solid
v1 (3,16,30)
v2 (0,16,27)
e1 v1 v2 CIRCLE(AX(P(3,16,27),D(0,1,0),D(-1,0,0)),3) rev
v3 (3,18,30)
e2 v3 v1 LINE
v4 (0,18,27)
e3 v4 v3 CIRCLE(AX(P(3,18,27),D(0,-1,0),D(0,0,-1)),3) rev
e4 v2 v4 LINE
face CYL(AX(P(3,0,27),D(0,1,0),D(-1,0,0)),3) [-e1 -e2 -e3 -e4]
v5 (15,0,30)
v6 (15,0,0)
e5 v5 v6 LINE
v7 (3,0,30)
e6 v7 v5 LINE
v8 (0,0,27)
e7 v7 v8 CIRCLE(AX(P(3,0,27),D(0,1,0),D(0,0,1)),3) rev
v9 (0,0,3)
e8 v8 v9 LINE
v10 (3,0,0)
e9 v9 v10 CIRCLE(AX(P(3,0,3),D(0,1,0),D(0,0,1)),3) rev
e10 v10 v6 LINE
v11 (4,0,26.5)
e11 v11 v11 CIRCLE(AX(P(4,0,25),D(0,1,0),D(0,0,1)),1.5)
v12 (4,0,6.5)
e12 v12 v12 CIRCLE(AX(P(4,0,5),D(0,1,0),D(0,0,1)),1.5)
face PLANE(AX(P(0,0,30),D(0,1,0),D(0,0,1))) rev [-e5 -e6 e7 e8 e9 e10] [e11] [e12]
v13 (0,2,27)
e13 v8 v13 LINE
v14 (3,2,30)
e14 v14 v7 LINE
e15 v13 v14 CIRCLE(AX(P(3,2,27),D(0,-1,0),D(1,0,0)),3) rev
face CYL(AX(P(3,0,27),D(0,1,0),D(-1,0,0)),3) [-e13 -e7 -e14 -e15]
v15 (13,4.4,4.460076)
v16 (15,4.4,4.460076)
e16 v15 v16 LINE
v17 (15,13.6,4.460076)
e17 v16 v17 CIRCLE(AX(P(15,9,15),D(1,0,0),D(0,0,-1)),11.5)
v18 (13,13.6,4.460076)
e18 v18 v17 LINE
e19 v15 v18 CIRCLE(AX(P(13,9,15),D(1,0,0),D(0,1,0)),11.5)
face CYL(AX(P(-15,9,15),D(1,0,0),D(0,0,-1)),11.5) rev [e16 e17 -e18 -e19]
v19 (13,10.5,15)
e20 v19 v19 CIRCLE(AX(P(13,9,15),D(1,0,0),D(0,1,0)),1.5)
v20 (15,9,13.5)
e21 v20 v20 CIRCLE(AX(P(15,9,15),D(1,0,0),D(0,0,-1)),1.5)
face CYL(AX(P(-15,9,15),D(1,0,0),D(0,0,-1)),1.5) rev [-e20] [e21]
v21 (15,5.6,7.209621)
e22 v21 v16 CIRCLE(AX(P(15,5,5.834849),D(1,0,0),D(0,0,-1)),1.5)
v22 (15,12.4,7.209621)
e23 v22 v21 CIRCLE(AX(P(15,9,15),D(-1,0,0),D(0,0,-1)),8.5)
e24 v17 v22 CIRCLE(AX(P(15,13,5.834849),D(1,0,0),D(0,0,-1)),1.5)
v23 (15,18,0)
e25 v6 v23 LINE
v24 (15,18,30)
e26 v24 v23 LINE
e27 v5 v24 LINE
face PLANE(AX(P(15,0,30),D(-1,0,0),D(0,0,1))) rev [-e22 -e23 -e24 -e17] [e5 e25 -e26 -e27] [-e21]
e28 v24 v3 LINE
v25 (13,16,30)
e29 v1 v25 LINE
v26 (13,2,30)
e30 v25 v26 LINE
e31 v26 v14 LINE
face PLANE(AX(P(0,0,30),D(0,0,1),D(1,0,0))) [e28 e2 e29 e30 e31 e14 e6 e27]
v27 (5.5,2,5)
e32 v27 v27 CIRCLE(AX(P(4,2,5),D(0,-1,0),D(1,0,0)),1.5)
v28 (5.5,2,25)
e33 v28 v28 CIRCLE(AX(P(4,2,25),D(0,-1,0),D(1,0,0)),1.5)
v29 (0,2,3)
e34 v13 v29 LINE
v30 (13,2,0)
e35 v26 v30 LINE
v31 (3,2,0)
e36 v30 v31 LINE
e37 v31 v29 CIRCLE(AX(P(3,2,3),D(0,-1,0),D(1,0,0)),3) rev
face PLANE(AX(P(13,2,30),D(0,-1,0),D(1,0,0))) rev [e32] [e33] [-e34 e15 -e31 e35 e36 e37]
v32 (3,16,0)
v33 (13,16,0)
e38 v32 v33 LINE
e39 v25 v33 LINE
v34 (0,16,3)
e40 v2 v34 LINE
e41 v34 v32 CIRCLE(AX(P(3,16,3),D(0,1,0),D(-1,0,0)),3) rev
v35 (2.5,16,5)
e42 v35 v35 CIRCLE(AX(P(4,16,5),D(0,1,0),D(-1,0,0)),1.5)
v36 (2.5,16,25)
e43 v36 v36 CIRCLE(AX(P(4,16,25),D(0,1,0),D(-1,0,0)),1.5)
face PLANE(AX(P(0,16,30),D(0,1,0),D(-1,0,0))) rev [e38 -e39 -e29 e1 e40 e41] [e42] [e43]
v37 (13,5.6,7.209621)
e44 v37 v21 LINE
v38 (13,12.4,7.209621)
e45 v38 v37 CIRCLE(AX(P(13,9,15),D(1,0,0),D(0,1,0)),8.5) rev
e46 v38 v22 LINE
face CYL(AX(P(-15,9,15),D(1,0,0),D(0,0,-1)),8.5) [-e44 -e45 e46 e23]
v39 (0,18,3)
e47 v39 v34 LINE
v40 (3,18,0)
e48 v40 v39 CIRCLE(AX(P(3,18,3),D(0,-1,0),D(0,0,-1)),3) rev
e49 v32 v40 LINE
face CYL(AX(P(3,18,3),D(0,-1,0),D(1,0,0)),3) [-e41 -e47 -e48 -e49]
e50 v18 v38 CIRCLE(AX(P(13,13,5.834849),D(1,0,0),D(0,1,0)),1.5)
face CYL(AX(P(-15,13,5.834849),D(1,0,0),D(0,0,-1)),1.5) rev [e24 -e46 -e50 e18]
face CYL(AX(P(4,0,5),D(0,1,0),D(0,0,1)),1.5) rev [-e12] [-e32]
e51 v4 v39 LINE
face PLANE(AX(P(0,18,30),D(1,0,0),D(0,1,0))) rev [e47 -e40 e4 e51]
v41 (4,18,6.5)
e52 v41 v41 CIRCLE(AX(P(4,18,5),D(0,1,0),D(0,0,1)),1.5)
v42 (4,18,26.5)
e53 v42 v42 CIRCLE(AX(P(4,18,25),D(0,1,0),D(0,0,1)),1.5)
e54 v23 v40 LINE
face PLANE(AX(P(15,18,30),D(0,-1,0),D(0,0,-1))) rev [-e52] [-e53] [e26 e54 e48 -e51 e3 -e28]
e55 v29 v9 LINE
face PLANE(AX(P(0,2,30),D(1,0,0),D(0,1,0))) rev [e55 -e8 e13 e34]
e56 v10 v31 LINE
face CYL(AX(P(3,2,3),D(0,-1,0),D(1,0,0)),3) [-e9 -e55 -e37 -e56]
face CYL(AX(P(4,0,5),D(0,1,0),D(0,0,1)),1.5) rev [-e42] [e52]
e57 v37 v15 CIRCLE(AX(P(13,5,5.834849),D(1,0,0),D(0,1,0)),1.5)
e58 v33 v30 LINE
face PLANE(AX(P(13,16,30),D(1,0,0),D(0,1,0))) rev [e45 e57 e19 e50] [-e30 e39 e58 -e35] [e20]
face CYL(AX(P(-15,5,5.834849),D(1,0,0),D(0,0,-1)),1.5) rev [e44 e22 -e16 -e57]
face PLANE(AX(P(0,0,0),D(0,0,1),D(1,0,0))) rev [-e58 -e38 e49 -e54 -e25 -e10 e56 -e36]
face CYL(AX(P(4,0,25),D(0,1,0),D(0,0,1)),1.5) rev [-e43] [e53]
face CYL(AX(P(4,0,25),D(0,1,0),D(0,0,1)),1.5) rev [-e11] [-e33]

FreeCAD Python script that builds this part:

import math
import FreeCAD as App
import Part
import Sketcher
from FreeCAD import Vector


def edges_at(feature, points):
    """Names of the edges that pass closest to the given points."""
    edges = feature.Shape.Edges
    near = lambda p: min(range(len(edges)), key=lambda i: edges[i].distToShape(Part.Vertex(*p))[0])
    return sorted({f"Edge{near(p) + 1}" for p in points})

doc = App.newDocument("Part")
body = doc.addObject("PartDesign::Body", "Body")

sketch1 = doc.addObject("Sketcher::SketchObject", "Sketch")
body.addObject(sketch1)
sketch1.AttachmentSupport = (doc.XY_Plane, [""])
sketch1.MapMode = "FlatFace"
sketch1.addGeometry([
    Part.LineSegment(Vector(0, 0, 0), Vector(15, 0, 0)),
    Part.LineSegment(Vector(15, 0, 0), Vector(15, 18, 0)),
    Part.LineSegment(Vector(15, 18, 0), Vector(0, 18, 0)),
    Part.LineSegment(Vector(0, 18, 0), Vector(0, 16, 0)),
    Part.LineSegment(Vector(0, 16, 0), Vector(13, 16, 0)),
    Part.LineSegment(Vector(13, 16, 0), Vector(13, 2, 0)),
    Part.LineSegment(Vector(13, 2, 0), Vector(0, 2, 0)),
    Part.LineSegment(Vector(0, 2, 0), Vector(0, 0, 0)),
], False)
sketch1.addConstraint([
    Sketcher.Constraint("Coincident", 0, 2, 1, 1),
    Sketcher.Constraint("Coincident", 1, 2, 2, 1),
    Sketcher.Constraint("Coincident", 2, 2, 3, 1),
    Sketcher.Constraint("Coincident", 3, 2, 4, 1),
    Sketcher.Constraint("Coincident", 4, 2, 5, 1),
    Sketcher.Constraint("Coincident", 5, 2, 6, 1),
    Sketcher.Constraint("Coincident", 6, 2, 7, 1),
    Sketcher.Constraint("Coincident", 7, 2, 0, 1),
    Sketcher.Constraint("Horizontal", 0),
    Sketcher.Constraint("Vertical", 1),
    Sketcher.Constraint("Horizontal", 2),
    Sketcher.Constraint("Vertical", 3),
    Sketcher.Constraint("Horizontal", 4),
    Sketcher.Constraint("Vertical", 5),
    Sketcher.Constraint("Horizontal", 6),
    Sketcher.Constraint("Vertical", 7),
    Sketcher.Constraint("Coincident", 7, 2, -1, 1),
    Sketcher.Constraint("PointOnObject", 2, 2, -2),
    Sketcher.Constraint("Equal", 3, 7),
    Sketcher.Constraint("DistanceX", 0, 1, 0, 2, 15.0),
    Sketcher.Constraint("DistanceX", 4, 1, 4, 2, 13.0),
    Sketcher.Constraint("DistanceY", 1, 1, 1, 2, 18.0),
    Sketcher.Constraint("DistanceY", 3, 2, 3, 1, 2.0),
])
pad1 = doc.addObject("PartDesign::Pad", "Pad")
body.addObject(pad1)
pad1.Profile = sketch1
pad1.Length = 30

sketch2 = doc.addObject("Sketcher::SketchObject", "Sketch001")
body.addObject(sketch2)
sketch2.AttachmentSupport = (doc.XZ_Plane, [""])
sketch2.MapMode = "FlatFace"
sketch2.AttachmentOffset = App.Placement(Vector(0, 0, -18), App.Rotation())
sketch2.addGeometry([
    Part.Circle(Vector(4, 5, 0), Vector(0, 0, 1), 1.5),
    Part.Circle(Vector(4, 25, 0), Vector(0, 0, 1), 1.5),
], False)
sketch2.addConstraint([
    Sketcher.Constraint("Equal", 0, 1),
    Sketcher.Constraint("Vertical", 0, 3, 1, 3),
    Sketcher.Constraint("Diameter", 0, 3.0),
    Sketcher.Constraint("DistanceX", -1, 1, 0, 3, 4.0),
    Sketcher.Constraint("DistanceY", -1, 1, 0, 3, 5.0),
    Sketcher.Constraint("DistanceY", -1, 1, 1, 3, 25.0),
])
pocket1 = doc.addObject("PartDesign::Pocket", "Pocket")
body.addObject(pocket1)
pocket1.Profile = sketch2
pocket1.Type = "ThroughAll"
pocket1.Reversed = True
doc.recompute()

fillet = doc.addObject("PartDesign::Fillet", "Fillet")
body.addObject(fillet)
fillet.Base = (pocket1, edges_at(pocket1, [
    (0, 1, 0),
    (0, 17, 30),
    (0, 1, 30),
    (0, 17, 0),
]))
fillet.Radius = 3

sketch3 = doc.addObject("Sketcher::SketchObject", "Sketch002")
body.addObject(sketch3)
sketch3.AttachmentSupport = (doc.YZ_Plane, [""])
sketch3.MapMode = "FlatFace"
sketch3.AttachmentOffset = App.Placement(Vector(0, 0, 15), App.Rotation())
sketch3.addGeometry([
    Part.Circle(Vector(9, 15, 0), Vector(0, 0, 1), 1.5),
    Part.ArcOfCircle(Part.Circle(Vector(9, 15, 0), Vector(0, 0, 1), 11.5), math.radians(-114), math.radians(-66)),
    Part.ArcOfCircle(Part.Circle(Vector(13, 5.8, 0), Vector(0, 0, 1), 1.5), math.radians(-66), math.radians(114)),
    Part.ArcOfCircle(Part.Circle(Vector(9, 15, 0), Vector(0, 0, 1), 8.5), math.radians(-114), math.radians(-66)),
    Part.ArcOfCircle(Part.Circle(Vector(5, 5.8, 0), Vector(0, 0, 1), 1.5), math.radians(66), math.radians(246)),
], False)
sketch3.addConstraint([
    Sketcher.Constraint("Tangent", 1, 2, 2, 1),
    Sketcher.Constraint("Tangent", 2, 2, 3, 2),
    Sketcher.Constraint("Tangent", 3, 1, 4, 1),
    Sketcher.Constraint("Tangent", 4, 2, 1, 1),
    Sketcher.Constraint("Coincident", 1, 3, 0, 3),
    Sketcher.Constraint("Coincident", 3, 3, 0, 3),
    Sketcher.Constraint("Equal", 0, 2),
    Sketcher.Constraint("Horizontal", 2, 3, 4, 3),
    Sketcher.Constraint("Diameter", 0, 3.0),
    Sketcher.Constraint("Radius", 1, 11.5),
    Sketcher.Constraint("DistanceX", -1, 1, 0, 3, 9.0),
    Sketcher.Constraint("DistanceY", -1, 1, 0, 3, 15.0),
    Sketcher.Constraint("DistanceX", -1, 1, 2, 3, 13.0),
])
pocket2 = doc.addObject("PartDesign::Pocket", "Pocket001")
body.addObject(pocket2)
pocket2.Profile = sketch3
pocket2.Length = 30

doc.recompute()
